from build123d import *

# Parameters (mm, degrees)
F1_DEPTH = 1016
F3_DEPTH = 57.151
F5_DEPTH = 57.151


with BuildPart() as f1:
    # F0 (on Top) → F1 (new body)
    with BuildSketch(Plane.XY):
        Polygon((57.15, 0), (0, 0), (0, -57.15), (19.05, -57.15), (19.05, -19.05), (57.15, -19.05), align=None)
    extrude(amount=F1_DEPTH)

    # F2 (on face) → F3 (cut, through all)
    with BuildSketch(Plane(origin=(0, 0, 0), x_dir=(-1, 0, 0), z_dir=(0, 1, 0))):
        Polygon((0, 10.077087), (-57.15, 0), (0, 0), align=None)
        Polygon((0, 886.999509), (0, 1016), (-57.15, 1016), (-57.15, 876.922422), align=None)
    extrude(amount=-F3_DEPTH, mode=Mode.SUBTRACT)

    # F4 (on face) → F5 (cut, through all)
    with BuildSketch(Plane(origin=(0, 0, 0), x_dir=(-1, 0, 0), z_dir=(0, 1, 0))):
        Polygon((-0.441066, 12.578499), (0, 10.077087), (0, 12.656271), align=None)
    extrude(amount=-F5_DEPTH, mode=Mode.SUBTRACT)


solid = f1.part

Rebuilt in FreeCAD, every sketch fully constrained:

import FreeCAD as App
import Part
import Sketcher

V = App.Vector
Q = App.Units.Quantity

doc = App.newDocument("Part")
params = doc.addObject("Spreadsheet::Sheet", "Params")
for row, (alias, value) in enumerate([
    ("sketch1_width", "1.5 in"),
    ("sketch1_width2", "2.25 in"),
    ("pad1_length", "40 in"),
    ("sketch2_width", "2.25 in"),
    ("sketch3_length", "0.1 in"),
], start=1):
    params.set(f"A{row}", alias)
    params.set(f"B{row}", "=" + value)
    params.setAlias(f"B{row}", alias)

body = doc.addObject("PartDesign::Body", "Body")

sketch1 = doc.addObject("Sketcher::SketchObject", "Sketch")
body.addObject(sketch1)
sketch1.AttachmentSupport = (doc.XY_Plane, [""])
sketch1.MapMode = "FlatFace"
sketch1.addGeometry(Part.LineSegment(V(57.15, 0, 0), V(0, 0, 0)), False)
sketch1.addGeometry(Part.LineSegment(V(0, 0, 0), V(0, -57.15, 0)), False)
sketch1.addGeometry(Part.LineSegment(V(0, -57.15, 0), V(19.05, -57.15, 0)), False)
sketch1.addGeometry(Part.LineSegment(V(19.05, -57.15, 0), V(19.05, -19.05, 0)), False)
sketch1.addGeometry(Part.LineSegment(V(19.05, -19.05, 0), V(57.15, -19.05, 0)), False)
sketch1.addGeometry(Part.LineSegment(V(57.15, -19.05, 0), V(57.15, 0, 0)), False)
sketch1.addConstraint(Sketcher.Constraint("Coincident", 0, 2, 1, 1))
sketch1.addConstraint(Sketcher.Constraint("Coincident", 1, 2, 2, 1))
sketch1.addConstraint(Sketcher.Constraint("Coincident", 2, 2, 3, 1))
sketch1.addConstraint(Sketcher.Constraint("Coincident", 3, 2, 4, 1))
sketch1.addConstraint(Sketcher.Constraint("Coincident", 4, 2, 5, 1))
sketch1.addConstraint(Sketcher.Constraint("Coincident", 5, 2, 0, 1))
sketch1.addConstraint(Sketcher.Constraint("Horizontal", 0))
sketch1.addConstraint(Sketcher.Constraint("Vertical", 1))
sketch1.addConstraint(Sketcher.Constraint("Horizontal", 2))
sketch1.addConstraint(Sketcher.Constraint("Vertical", 3))
sketch1.addConstraint(Sketcher.Constraint("Horizontal", 4))
sketch1.addConstraint(Sketcher.Constraint("Vertical", 5))
sketch1.addConstraint(Sketcher.Constraint("Coincident", 0, 2, -1, 1))
sketch1.addConstraint(Sketcher.Constraint("Equal", 0, 1))
sketch1.addConstraint(Sketcher.Constraint("Equal", 4, 3))
sketch1.addConstraint(Sketcher.Constraint("DistanceX", 4, 1, 4, 2, Q("1.5 in")))
sketch1.addConstraint(Sketcher.Constraint("DistanceX", 0, 2, 0, 1, Q("2.25 in")))
sketch1.setExpression("Constraints[15]", "Params.sketch1_width")
sketch1.setExpression("Constraints[16]", "Params.sketch1_width2")
pad1 = doc.addObject("PartDesign::Pad", "Pad")
body.addObject(pad1)
pad1.Profile = sketch1
pad1.setExpression("Length", "Params.pad1_length")

sketch2 = doc.addObject("Sketcher::SketchObject", "Sketch001")
body.addObject(sketch2)
sketch2.AttachmentSupport = (doc.XZ_Plane, [""])
sketch2.MapMode = "FlatFace"
sketch2.addGeometry(Part.LineSegment(V(0, 10.077087, 0), V(57.15, 0, 0)), False)
sketch2.addGeometry(Part.LineSegment(V(57.15, 0, 0), V(0, 0, 0)), False)
sketch2.addGeometry(Part.LineSegment(V(0, 0, 0), V(0, 10.077087, 0)), False)
sketch2.addGeometry(Part.LineSegment(V(0, 886.999509, 0), V(0, 1016, 0)), False)
sketch2.addGeometry(Part.LineSegment(V(0, 1016, 0), V(57.15, 1016, 0)), False)
sketch2.addGeometry(Part.LineSegment(V(57.15, 1016, 0), V(57.15, 876.922422, 0)), False)
sketch2.addGeometry(Part.LineSegment(V(57.15, 876.922422, 0), V(0, 886.999509, 0)), False)
sketch2.addConstraint(Sketcher.Constraint("Coincident", 0, 2, 1, 1))
sketch2.addConstraint(Sketcher.Constraint("Coincident", 1, 2, 2, 1))
sketch2.addConstraint(Sketcher.Constraint("Coincident", 2, 2, 0, 1))
sketch2.addConstraint(Sketcher.Constraint("Coincident", 3, 2, 4, 1))
sketch2.addConstraint(Sketcher.Constraint("Coincident", 4, 2, 5, 1))
sketch2.addConstraint(Sketcher.Constraint("Coincident", 5, 2, 6, 1))
sketch2.addConstraint(Sketcher.Constraint("Coincident", 6, 2, 3, 1))
sketch2.addConstraint(Sketcher.Constraint("Horizontal", 1))
sketch2.addConstraint(Sketcher.Constraint("Vertical", 2))
sketch2.addConstraint(Sketcher.Constraint("Vertical", 3))
sketch2.addConstraint(Sketcher.Constraint("Horizontal", 4))
sketch2.addConstraint(Sketcher.Constraint("Vertical", 5))
sketch2.addConstraint(Sketcher.Constraint("Coincident", 1, 2, -1, 1))
sketch2.addConstraint(Sketcher.Constraint("PointOnObject", 3, 2, -2))
sketch2.addConstraint(Sketcher.Constraint("Parallel", 0, 6))
sketch2.addConstraint(Sketcher.Constraint("Vertical", 0, 2, 4, 2))
sketch2.addConstraint(Sketcher.Constraint("DistanceY", -1, 1, 3, 2, Q("40 in")))
sketch2.addConstraint(Sketcher.Constraint("Angle", 0, Q("-10 deg")))
sketch2.addConstraint(Sketcher.Constraint("DistanceX", 1, 2, 1, 1, Q("2.25 in")))
sketch2.addConstraint(Sketcher.Constraint("DistanceY", 3, 1, 3, 2, 129.000491))
sketch2.setExpression("Constraints[18]", "Params.sketch2_width")
pocket1 = doc.addObject("PartDesign::Pocket", "Pocket")
body.addObject(pocket1)
pocket1.Profile = sketch2
pocket1.Type = "ThroughAll"
pocket1.Reversed = True

sketch3 = doc.addObject("Sketcher::SketchObject", "Sketch002")
body.addObject(sketch3)
sketch3.AttachmentSupport = (doc.XZ_Plane, [""])
sketch3.MapMode = "FlatFace"
sketch3.addGeometry(Part.LineSegment(V(0.441066, 12.578499, 0), V(0, 10.077087, 0)), False)
sketch3.addGeometry(Part.LineSegment(V(0, 10.077087, 0), V(0, 12.656271, 0)), False)
sketch3.addGeometry(Part.LineSegment(V(0, 12.656271, 0), V(0.441066, 12.578499, 0)), False)
sketch3.addConstraint(Sketcher.Constraint("Coincident", 0, 2, 1, 1))
sketch3.addConstraint(Sketcher.Constraint("Coincident", 1, 2, 2, 1))
sketch3.addConstraint(Sketcher.Constraint("Coincident", 2, 2, 0, 1))
sketch3.addConstraint(Sketcher.Constraint("Vertical", 1))
sketch3.addConstraint(Sketcher.Constraint("PointOnObject", 0, 2, -2))
sketch3.addConstraint(Sketcher.Constraint("Perpendicular", 0, 2))
sketch3.addConstraint(Sketcher.Constraint("Angle", 0, Q("-99.999991 deg")))
sketch3.addConstraint(Sketcher.Constraint("Distance", 0, Q("0.1 in")))
sketch3.addConstraint(Sketcher.Constraint("DistanceY", -1, 1, 2, 2, 12.578499))
sketch3.setExpression("Constraints[7]", "Params.sketch3_length")
pocket2 = doc.addObject("PartDesign::Pocket", "Pocket001")
body.addObject(pocket2)
pocket2.Profile = sketch3
pocket2.Type = "ThroughAll"
pocket2.Reversed = True

doc.recompute()
